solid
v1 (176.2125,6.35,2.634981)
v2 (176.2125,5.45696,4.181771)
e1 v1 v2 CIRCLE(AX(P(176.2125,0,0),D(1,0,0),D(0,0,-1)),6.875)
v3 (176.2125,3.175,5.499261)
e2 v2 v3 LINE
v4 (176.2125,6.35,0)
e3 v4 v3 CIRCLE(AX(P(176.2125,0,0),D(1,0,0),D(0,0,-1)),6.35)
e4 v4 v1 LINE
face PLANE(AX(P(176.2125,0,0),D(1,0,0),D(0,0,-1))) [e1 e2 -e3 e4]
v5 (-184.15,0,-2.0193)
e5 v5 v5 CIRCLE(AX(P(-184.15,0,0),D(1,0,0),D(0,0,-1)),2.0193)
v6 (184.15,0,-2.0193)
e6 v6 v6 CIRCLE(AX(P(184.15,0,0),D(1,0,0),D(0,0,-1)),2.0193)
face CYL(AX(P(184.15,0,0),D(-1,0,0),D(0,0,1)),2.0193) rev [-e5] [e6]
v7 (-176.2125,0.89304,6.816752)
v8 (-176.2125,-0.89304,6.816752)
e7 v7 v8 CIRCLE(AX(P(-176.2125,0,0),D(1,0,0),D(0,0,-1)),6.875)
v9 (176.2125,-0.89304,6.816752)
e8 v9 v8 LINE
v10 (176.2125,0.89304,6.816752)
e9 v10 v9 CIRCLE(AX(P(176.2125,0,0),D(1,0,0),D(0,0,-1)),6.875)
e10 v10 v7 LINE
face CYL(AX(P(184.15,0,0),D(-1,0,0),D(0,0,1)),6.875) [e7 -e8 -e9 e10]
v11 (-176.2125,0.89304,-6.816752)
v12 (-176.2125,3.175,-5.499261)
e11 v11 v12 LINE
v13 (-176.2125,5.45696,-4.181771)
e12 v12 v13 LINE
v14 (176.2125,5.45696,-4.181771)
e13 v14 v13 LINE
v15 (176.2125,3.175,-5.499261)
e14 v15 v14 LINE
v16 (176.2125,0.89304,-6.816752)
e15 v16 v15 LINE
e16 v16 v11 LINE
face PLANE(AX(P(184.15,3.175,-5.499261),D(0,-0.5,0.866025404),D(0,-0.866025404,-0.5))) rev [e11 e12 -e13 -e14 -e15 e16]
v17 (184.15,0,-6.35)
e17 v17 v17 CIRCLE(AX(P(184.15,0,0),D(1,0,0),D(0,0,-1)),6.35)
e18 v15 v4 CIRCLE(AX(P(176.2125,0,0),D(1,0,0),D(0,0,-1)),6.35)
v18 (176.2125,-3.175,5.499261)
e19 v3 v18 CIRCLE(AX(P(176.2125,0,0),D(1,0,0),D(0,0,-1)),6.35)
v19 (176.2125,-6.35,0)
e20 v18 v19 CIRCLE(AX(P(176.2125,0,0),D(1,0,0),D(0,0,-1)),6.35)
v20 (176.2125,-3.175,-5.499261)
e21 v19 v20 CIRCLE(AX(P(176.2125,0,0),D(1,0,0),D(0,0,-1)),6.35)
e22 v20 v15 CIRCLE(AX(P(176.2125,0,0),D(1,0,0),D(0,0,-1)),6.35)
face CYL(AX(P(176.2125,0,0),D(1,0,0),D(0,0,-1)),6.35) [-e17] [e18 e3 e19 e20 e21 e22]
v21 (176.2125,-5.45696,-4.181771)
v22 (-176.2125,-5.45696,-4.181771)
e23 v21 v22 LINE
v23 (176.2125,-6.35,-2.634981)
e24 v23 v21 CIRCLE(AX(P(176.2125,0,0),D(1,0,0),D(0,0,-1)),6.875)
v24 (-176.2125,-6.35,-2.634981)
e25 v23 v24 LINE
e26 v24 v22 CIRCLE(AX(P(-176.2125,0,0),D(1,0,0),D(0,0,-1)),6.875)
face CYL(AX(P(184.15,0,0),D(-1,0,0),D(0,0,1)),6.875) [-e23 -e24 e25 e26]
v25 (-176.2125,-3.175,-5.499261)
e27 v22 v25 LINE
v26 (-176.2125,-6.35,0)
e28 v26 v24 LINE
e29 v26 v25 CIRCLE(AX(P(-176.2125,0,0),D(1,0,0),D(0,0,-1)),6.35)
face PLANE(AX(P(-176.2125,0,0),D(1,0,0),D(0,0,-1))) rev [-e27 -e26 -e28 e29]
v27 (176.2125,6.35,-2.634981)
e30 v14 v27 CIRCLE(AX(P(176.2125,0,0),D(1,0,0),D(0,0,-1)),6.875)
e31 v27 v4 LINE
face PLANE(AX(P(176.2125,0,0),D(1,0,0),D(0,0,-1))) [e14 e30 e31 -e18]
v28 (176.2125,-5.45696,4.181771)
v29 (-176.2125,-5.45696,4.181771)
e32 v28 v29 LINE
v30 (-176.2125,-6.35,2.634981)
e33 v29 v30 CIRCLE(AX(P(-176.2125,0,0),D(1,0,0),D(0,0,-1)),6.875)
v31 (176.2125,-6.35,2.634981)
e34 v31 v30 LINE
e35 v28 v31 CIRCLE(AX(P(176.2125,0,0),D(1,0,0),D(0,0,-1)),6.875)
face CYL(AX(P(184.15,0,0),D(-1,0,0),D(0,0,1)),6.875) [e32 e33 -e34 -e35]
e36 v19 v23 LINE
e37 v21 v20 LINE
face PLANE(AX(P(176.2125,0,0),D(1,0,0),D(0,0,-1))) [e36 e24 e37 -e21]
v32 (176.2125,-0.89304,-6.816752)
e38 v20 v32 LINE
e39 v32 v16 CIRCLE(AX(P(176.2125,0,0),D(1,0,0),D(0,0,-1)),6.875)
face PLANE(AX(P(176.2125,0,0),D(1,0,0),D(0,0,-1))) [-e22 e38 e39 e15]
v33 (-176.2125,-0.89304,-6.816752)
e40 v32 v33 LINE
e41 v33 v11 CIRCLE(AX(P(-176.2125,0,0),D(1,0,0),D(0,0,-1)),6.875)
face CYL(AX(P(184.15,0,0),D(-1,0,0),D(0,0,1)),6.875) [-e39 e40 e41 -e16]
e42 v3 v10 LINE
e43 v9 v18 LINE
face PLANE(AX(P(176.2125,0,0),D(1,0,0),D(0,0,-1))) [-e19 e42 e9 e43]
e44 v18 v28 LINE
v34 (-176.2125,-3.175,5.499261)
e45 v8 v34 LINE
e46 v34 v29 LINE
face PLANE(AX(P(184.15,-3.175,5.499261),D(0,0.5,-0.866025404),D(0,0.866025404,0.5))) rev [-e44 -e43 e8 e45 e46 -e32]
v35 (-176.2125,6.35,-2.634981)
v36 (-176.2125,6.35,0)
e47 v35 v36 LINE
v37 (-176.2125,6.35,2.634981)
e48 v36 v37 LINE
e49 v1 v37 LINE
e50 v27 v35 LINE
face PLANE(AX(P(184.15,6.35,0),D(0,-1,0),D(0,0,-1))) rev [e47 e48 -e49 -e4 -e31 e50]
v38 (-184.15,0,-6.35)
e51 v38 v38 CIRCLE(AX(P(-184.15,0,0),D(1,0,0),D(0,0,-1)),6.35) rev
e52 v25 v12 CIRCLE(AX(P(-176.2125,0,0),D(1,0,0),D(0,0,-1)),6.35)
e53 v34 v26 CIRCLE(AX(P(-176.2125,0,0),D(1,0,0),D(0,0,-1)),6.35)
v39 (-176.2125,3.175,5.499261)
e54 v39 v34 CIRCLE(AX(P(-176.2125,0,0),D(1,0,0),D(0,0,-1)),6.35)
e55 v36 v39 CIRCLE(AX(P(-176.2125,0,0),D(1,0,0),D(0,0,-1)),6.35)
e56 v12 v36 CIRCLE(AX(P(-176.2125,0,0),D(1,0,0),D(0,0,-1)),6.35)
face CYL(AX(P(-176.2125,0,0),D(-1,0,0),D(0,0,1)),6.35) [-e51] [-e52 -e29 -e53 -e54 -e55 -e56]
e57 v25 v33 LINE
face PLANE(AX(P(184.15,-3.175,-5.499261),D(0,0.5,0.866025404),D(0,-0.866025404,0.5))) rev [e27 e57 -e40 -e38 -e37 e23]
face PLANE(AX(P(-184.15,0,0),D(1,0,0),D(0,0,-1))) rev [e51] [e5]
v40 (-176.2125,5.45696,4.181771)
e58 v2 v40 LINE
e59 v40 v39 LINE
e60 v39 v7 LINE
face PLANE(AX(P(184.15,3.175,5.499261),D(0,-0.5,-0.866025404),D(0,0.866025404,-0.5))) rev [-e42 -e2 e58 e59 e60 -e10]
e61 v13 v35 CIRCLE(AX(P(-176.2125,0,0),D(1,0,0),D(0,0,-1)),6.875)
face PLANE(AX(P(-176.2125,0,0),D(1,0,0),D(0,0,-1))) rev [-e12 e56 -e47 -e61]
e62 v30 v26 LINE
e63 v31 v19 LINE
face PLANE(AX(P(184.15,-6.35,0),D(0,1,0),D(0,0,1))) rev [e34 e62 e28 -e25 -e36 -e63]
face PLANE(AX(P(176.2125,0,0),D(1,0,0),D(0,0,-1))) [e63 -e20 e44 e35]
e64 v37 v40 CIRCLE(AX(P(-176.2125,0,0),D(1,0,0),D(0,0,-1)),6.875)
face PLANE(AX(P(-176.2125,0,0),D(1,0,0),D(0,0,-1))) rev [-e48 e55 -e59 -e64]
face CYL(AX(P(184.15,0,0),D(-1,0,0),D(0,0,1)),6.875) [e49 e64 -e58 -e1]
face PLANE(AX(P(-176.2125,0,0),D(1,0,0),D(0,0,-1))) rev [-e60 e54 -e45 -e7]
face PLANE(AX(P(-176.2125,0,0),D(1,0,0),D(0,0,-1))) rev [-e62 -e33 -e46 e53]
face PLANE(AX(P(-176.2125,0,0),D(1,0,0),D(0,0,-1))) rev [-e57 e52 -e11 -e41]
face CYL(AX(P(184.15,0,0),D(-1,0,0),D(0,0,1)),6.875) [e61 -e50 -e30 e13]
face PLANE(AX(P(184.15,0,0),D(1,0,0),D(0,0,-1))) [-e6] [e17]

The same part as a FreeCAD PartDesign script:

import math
import FreeCAD as App
import Part
import Sketcher
from FreeCAD import Vector
Q = App.Units.Quantity

doc = App.newDocument("Part")
body = doc.addObject("PartDesign::Body", "Body")

# Sketch on YZ plane
sketch1 = body.newObject("Sketcher::SketchObject", "Sketch")
sketch1.AttachmentSupport = (doc.getObject("YZ_Plane"), [""])
sketch1.MapMode = "FlatFace"
sketch1.addGeometry([
    Part.ArcOfCircle(Part.Circle(Vector(0, 0, 0), Vector(0, 0, 1), 6.9), math.radians(-37.46), math.radians(-22.54)),  # 0
    Part.LineSegment(Vector(6.3, -2.6, 0), Vector(6.3, 2.6, 0)),  # 1
    Part.ArcOfCircle(Part.Circle(Vector(0, 0, 0), Vector(0, 0, 1), 6.9), math.radians(22.54), math.radians(37.46)),  # 2
    Part.LineSegment(Vector(5.5, 4.2, 0), Vector(0.9, 6.8, 0)),  # 3
    Part.ArcOfCircle(Part.Circle(Vector(0, 0, 0), Vector(0, 0, 1), 6.9), math.radians(82.54), math.radians(97.46)),  # 4
    Part.LineSegment(Vector(-0.9, 6.8, 0), Vector(-5.5, 4.2, 0)),  # 5
    Part.ArcOfCircle(Part.Circle(Vector(0, 0, 0), Vector(0, 0, 1), 6.9), math.radians(142.54), math.radians(157.46)),  # 6
    Part.LineSegment(Vector(-6.3, 2.6, 0), Vector(-6.3, -2.6, 0)),  # 7
    Part.ArcOfCircle(Part.Circle(Vector(0, 0, 0), Vector(0, 0, 1), 6.9), math.radians(-157.46), math.radians(-142.54)),  # 8
    Part.LineSegment(Vector(-5.5, -4.2, 0), Vector(-0.9, -6.8, 0)),  # 9
    Part.ArcOfCircle(Part.Circle(Vector(0, 0, 0), Vector(0, 0, 1), 6.9), math.radians(-97.46), math.radians(-90)),  # 10
    Part.ArcOfCircle(Part.Circle(Vector(0, 0, 0), Vector(0, 0, 1), 6.9), math.radians(-90), math.radians(-82.54)),  # 11
    Part.LineSegment(Vector(0.9, -6.8, 0), Vector(5.5, -4.2, 0)),  # 12
    Part.Circle(Vector(0, 0, 0), Vector(0, 0, 1), 2),  # 13
], False)
sketch1.addConstraint([
    Sketcher.Constraint("Coincident", 0, 2, 1, 1),
    Sketcher.Constraint("Coincident", 1, 2, 2, 1),
    Sketcher.Constraint("Coincident", 2, 2, 3, 1),
    Sketcher.Constraint("Coincident", 3, 2, 4, 1),
    Sketcher.Constraint("Coincident", 4, 2, 5, 1),
    Sketcher.Constraint("Coincident", 5, 2, 6, 1),
    Sketcher.Constraint("Coincident", 6, 2, 7, 1),
    Sketcher.Constraint("Coincident", 7, 2, 8, 1),
    Sketcher.Constraint("Coincident", 8, 2, 9, 1),
    Sketcher.Constraint("Coincident", 9, 2, 10, 1),
    Sketcher.Constraint("Tangent", 10, 2, 11, 1),
    Sketcher.Constraint("Coincident", 11, 2, 12, 1),
    Sketcher.Constraint("Coincident", 12, 2, 0, 1),
    Sketcher.Constraint("Vertical", 1),
    Sketcher.Constraint("Vertical", 7),
    Sketcher.Constraint("Coincident", 0, 3, -1, 1),
    Sketcher.Constraint("Coincident", 2, 3, -1, 1),
    Sketcher.Constraint("Coincident", 4, 3, -1, 1),
    Sketcher.Constraint("Coincident", 6, 3, -1, 1),
    Sketcher.Constraint("Coincident", 8, 3, -1, 1),
    Sketcher.Constraint("Coincident", 10, 3, -1, 1),
    Sketcher.Constraint("Coincident", 13, 3, -1, 1),
    Sketcher.Constraint("Equal", 0, 2),
    Sketcher.Constraint("Equal", 2, 4),
    Sketcher.Constraint("Equal", 4, 6),
    Sketcher.Constraint("Equal", 6, 8),
    Sketcher.Constraint("Equal", 8, 10),
    Sketcher.Constraint("Equal", 10, 11),
    Sketcher.Constraint("PointOnObject", 10, 2, -2),
    Sketcher.Constraint("Parallel", 3, 9),
    Sketcher.Constraint("Parallel", 5, 12),
    Sketcher.Constraint("Horizontal", 3, 2, 4, 2),
    Sketcher.Constraint("Horizontal", 2, 2, 5, 2),
    Sketcher.Constraint("Horizontal", 1, 2, 6, 2),
    Sketcher.Constraint("Horizontal", 9, 2, 11, 2),
    Sketcher.Constraint("Vertical", 5, 2, 8, 2),
    Sketcher.Constraint("Diameter", 13, Q("0.159 in")),
    Sketcher.Constraint("Angle", 3, Q("150 deg")),
    Sketcher.Constraint("DistanceX", -1, 1, 0, 2, Q("0.25 in")),
    Sketcher.Constraint("Radius", 0, Q("6.875 mm")),
    Sketcher.Constraint("Distance", 3, Q("5.269962 mm")),
])
pad1 = body.newObject("PartDesign::Pad", "Pad")
pad1.Profile = sketch1
pad1.Length = Q("14.5 in")
pad1.Midplane = True

# Sketch on YZ plane
sketch2 = body.newObject("Sketcher::SketchObject", "Sketch001")
sketch2.AttachmentSupport = (doc.getObject("YZ_Plane"), [""])
sketch2.MapMode = "FlatFace"
sketch2.AttachmentOffset = App.Placement(Vector(0, 0, 7.25 * 25.4), App.Rotation())
sketch2.addGeometry(Part.Circle(Vector(0, 0, 0), Vector(0, 0, 1), 2), False)
sketch2.addConstraint([
    Sketcher.Constraint("Coincident", 0, 3, -1, 1),
    Sketcher.Constraint("Diameter", 0, Q("0.159 in")),
])
doc.recompute()
hole = body.newObject("PartDesign::Hole", "Hole")
hole.Profile = sketch2
hole.ThreadType = "None"
hole.Diameter = Q("0.159 in")
hole.DepthType = "Dimension"
hole.Depth = Q("0.6436 in")
hole.DrillPoint = "Angled"
hole.DrillPointAngle = 118

# Sketch on YZ plane
sketch3 = body.newObject("Sketcher::SketchObject", "Sketch002")
sketch3.AttachmentSupport = (doc.getObject("YZ_Plane"), [""])
sketch3.MapMode = "FlatFace"
sketch3.AttachmentOffset = App.Placement(Vector(0, 0, -7.25 * 25.4), App.Rotation())
sketch3.addGeometry(Part.Circle(Vector(0, 0, 0), Vector(0, 0, 1), 2), False)
sketch3.addConstraint([
    Sketcher.Constraint("Coincident", 0, 3, -1, 1),
    Sketcher.Constraint("Diameter", 0, Q("0.159 in")),
])
doc.recompute()
hole2 = body.newObject("PartDesign::Hole", "Hole001")
hole2.Profile = sketch3
hole2.ThreadType = "None"
hole2.Diameter = Q("0.159 in")
hole2.DepthType = "Dimension"
hole2.Depth = Q("0.6436 in")
hole2.DrillPoint = "Angled"
hole2.DrillPointAngle = 118

# Sketch on YZ plane
sketch4 = body.newObject("Sketcher::SketchObject", "Sketch003")
sketch4.AttachmentSupport = (doc.getObject("YZ_Plane"), [""])
sketch4.MapMode = "FlatFace"
sketch4.AttachmentOffset = App.Placement(Vector(0, 0, 7.25 * 25.4), App.Rotation())
sketch4.addGeometry([
    Part.Circle(Vector(0, 0, 0), Vector(0, 0, 1), 9),
    Part.Circle(Vector(0, 0, 0), Vector(0, 0, 1), 6),
], False)
sketch4.addConstraint([
    Sketcher.Constraint("Coincident", 0, 3, -1, 1),
    Sketcher.Constraint("Coincident", 1, 3, -1, 1),
    Sketcher.Constraint("Diameter", 0, Q("0.7 in")),
    Sketcher.Constraint("Diameter", 1, Q("0.5 in")),
])
pocket1 = body.newObject("PartDesign::Pocket", "Pocket")
pocket1.Profile = sketch4
pocket1.Length = Q("0.3125 in")
doc.recompute()

mirrored = body.newObject("PartDesign::Mirrored", "Mirrored")
mirrored.Originals = [pocket1]
mirrored.MirrorPlane = (doc.getObject("YZ_Plane"), [""])
body.Tip = mirrored

doc.recompute()
